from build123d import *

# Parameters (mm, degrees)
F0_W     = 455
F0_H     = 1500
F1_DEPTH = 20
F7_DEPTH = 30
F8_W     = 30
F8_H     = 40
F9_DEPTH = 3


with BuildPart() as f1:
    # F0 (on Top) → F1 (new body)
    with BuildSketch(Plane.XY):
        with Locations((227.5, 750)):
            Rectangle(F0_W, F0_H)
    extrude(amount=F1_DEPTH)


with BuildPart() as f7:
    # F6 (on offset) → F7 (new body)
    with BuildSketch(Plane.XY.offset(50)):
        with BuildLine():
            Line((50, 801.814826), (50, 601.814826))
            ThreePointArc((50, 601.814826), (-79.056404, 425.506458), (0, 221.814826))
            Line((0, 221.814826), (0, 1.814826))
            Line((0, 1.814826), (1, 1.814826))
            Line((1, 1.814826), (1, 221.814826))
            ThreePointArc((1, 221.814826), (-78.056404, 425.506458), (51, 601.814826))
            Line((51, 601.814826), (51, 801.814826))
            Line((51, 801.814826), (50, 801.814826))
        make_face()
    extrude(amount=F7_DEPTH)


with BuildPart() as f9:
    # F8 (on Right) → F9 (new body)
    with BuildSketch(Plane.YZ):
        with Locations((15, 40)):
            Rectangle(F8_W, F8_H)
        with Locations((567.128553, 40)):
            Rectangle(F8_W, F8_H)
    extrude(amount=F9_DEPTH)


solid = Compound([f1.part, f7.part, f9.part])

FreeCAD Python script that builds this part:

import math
import FreeCAD as App
import Part
import Sketcher
from FreeCAD import Vector

doc = App.newDocument("Part")
params = doc.addObject("Spreadsheet::Sheet", "Params")
for row, (alias, value) in enumerate([
    ("sketch1_width", "455 mm"),
    ("sketch1_height", "1500 mm"),
    ("pad1_length", "20 mm"),
    ("sketch2_width", "1 mm"),
    ("sketch2_height", "200 mm"),
    ("sketch2_height2", "220 mm"),
    ("pad2_length", "30 mm"),
    ("sketch3_width", "30 mm"),
    ("sketch3_height", "40 mm"),
    ("pad3_length", "3 mm"),
], start=1):
    params.set(f"A{row}", alias)
    params.set(f"B{row}", "=" + value)
    params.setAlias(f"B{row}", alias)

body = doc.addObject("PartDesign::Body", "Body")

# Sketch on XY plane
sketch1 = body.newObject("Sketcher::SketchObject", "Sketch")
sketch1.AttachmentSupport = (doc.getObject("XY_Plane"), [""])
sketch1.MapMode = "FlatFace"
sketch1.addGeometry([
    Part.LineSegment(Vector(0, 1500, 0), Vector(0, 0, 0)),
    Part.LineSegment(Vector(0, 0, 0), Vector(455, 0, 0)),
    Part.LineSegment(Vector(455, 0, 0), Vector(455, 1500, 0)),
    Part.LineSegment(Vector(455, 1500, 0), Vector(0, 1500, 0)),
], False)
sketch1.addConstraint([
    Sketcher.Constraint("Coincident", 0, 2, 1, 1),
    Sketcher.Constraint("Coincident", 1, 2, 2, 1),
    Sketcher.Constraint("Coincident", 2, 2, 3, 1),
    Sketcher.Constraint("Coincident", 3, 2, 0, 1),
    Sketcher.Constraint("Vertical", 0),
    Sketcher.Constraint("Horizontal", 1),
    Sketcher.Constraint("Vertical", 2),
    Sketcher.Constraint("Horizontal", 3),
    Sketcher.Constraint("Coincident", 0, 2, -1, 1),
    Sketcher.Constraint("DistanceX", 1, 1, 1, 2, 455.0),
    Sketcher.Constraint("DistanceY", 0, 2, 0, 1, 1500.0),
])
sketch1.setExpression("Constraints[9]", "Params.sketch1_width")
sketch1.setExpression("Constraints[10]", "Params.sketch1_height")
pad1 = body.newObject("PartDesign::Pad", "Pad")
pad1.Profile = sketch1
pad1.setExpression("Length", "Params.pad1_length")
body2 = doc.addObject("PartDesign::Body", "Body001")

# Sketch on XY plane
sketch2 = body2.newObject("Sketcher::SketchObject", "Sketch001")
sketch2.AttachmentSupport = (doc.getObject("XY_Plane001"), [""])
sketch2.MapMode = "FlatFace"
sketch2.AttachmentOffset = App.Placement(Vector(0, 0, 50), App.Rotation())
sketch2.addGeometry([
    Part.LineSegment(Vector(50, 801.8, 0), Vector(50, 601.8, 0)),  # 0
    Part.ArcOfCircle(Part.Circle(Vector(146.4, 395.8, 0), Vector(0, 0, 1), 227.4), math.radians(115), math.radians(230)),  # 1
    Part.LineSegment(Vector(0, 221.8, 0), Vector(0, 1.8, 0)),  # 2
    Part.LineSegment(Vector(0, 1.8, 0), Vector(1, 1.8, 0)),  # 3
    Part.LineSegment(Vector(1, 1.8, 0), Vector(1, 221.8, 0)),  # 4
    Part.ArcOfCircle(Part.Circle(Vector(147.4, 395.8, 0), Vector(0, 0, 1), 227.4), math.radians(115), math.radians(230)),  # 5
    Part.LineSegment(Vector(51, 601.8, 0), Vector(51, 801.8, 0)),  # 6
    Part.LineSegment(Vector(51, 801.8, 0), Vector(50, 801.8, 0)),  # 7
], False)
sketch2.addConstraint([
    Sketcher.Constraint("Coincident", 0, 2, 1, 1),
    Sketcher.Constraint("Coincident", 1, 2, 2, 1),
    Sketcher.Constraint("Coincident", 2, 2, 3, 1),
    Sketcher.Constraint("Coincident", 3, 2, 4, 1),
    Sketcher.Constraint("Coincident", 4, 2, 5, 2),
    Sketcher.Constraint("Coincident", 5, 1, 6, 1),
    Sketcher.Constraint("Coincident", 6, 2, 7, 1),
    Sketcher.Constraint("Coincident", 7, 2, 0, 1),
    Sketcher.Constraint("Vertical", 0),
    Sketcher.Constraint("Vertical", 2),
    Sketcher.Constraint("Horizontal", 3),
    Sketcher.Constraint("Vertical", 4),
    Sketcher.Constraint("Vertical", 6),
    Sketcher.Constraint("Horizontal", 7),
    Sketcher.Constraint("Equal", 1, 5),
    Sketcher.Constraint("PointOnObject", 1, 2, -2),
    Sketcher.Constraint("Horizontal", 1, 3, 5, 3),
    Sketcher.Constraint("Horizontal", 1, 2, 4, 2),
    Sketcher.Constraint("Horizontal", 0, 2, 5, 1),
    Sketcher.Constraint("DistanceX", 3, 1, 3, 2, 1.0),
    Sketcher.Constraint("DistanceY", 0, 2, 0, 1, 200.0),
    Sketcher.Constraint("DistanceY", 2, 2, 2, 1, 220.0),
    Sketcher.Constraint("DistanceX", -1, 1, 0, 2, 50.0),
    Sketcher.Constraint("DistanceY", 1, 2, 0, 2, 380.0),
    Sketcher.Constraint("Radius", 1, 227.435413),
    Sketcher.Constraint("DistanceY", -1, 1, 1, 3, 395.836482),
])
sketch2.setExpression("Constraints[19]", "Params.sketch2_width")
sketch2.setExpression("Constraints[20]", "Params.sketch2_height")
sketch2.setExpression("Constraints[21]", "Params.sketch2_height2")
pad2 = body2.newObject("PartDesign::Pad", "Pad001")
pad2.Profile = sketch2
pad2.setExpression("Length", "Params.pad2_length")
body3 = doc.addObject("PartDesign::Body", "Body002")
body3.AllowCompound = True

# Sketch on YZ plane
sketch3 = body3.newObject("Sketcher::SketchObject", "Sketch002")
sketch3.AttachmentSupport = (doc.getObject("YZ_Plane002"), [""])
sketch3.MapMode = "FlatFace"
sketch3.addGeometry([
    Part.LineSegment(Vector(0, 60, 0), Vector(0, 20, 0)),  # 0
    Part.LineSegment(Vector(0, 20, 0), Vector(30, 20, 0)),  # 1
    Part.LineSegment(Vector(30, 20, 0), Vector(30, 60, 0)),  # 2
    Part.LineSegment(Vector(30, 60, 0), Vector(0, 60, 0)),  # 3
    Part.LineSegment(Vector(552, 60, 0), Vector(552, 20, 0)),  # 4
    Part.LineSegment(Vector(552, 20, 0), Vector(582, 20, 0)),  # 5
    Part.LineSegment(Vector(582, 20, 0), Vector(582, 60, 0)),  # 6
    Part.LineSegment(Vector(582, 60, 0), Vector(552, 60, 0)),  # 7
], False)
sketch3.addConstraint([
    Sketcher.Constraint("Coincident", 0, 2, 1, 1),
    Sketcher.Constraint("Coincident", 1, 2, 2, 1),
    Sketcher.Constraint("Coincident", 2, 2, 3, 1),
    Sketcher.Constraint("Coincident", 3, 2, 0, 1),
    Sketcher.Constraint("Coincident", 4, 2, 5, 1),
    Sketcher.Constraint("Coincident", 5, 2, 6, 1),
    Sketcher.Constraint("Coincident", 6, 2, 7, 1),
    Sketcher.Constraint("Coincident", 7, 2, 4, 1),
    Sketcher.Constraint("Vertical", 0),
    Sketcher.Constraint("Horizontal", 1),
    Sketcher.Constraint("Vertical", 2),
    Sketcher.Constraint("Horizontal", 3),
    Sketcher.Constraint("Vertical", 4),
    Sketcher.Constraint("Horizontal", 5),
    Sketcher.Constraint("Vertical", 6),
    Sketcher.Constraint("Horizontal", 7),
    Sketcher.Constraint("PointOnObject", 0, 2, -2),
    Sketcher.Constraint("Horizontal", 1, 2, 4, 2),
    Sketcher.Constraint("Horizontal", 3, 2, 6, 2),
    Sketcher.Constraint("Equal", 3, 5),
    Sketcher.Constraint("DistanceX", 1, 1, 1, 2, 30.0),
    Sketcher.Constraint("DistanceY", 0, 2, 0, 1, 40.0),
    Sketcher.Constraint("DistanceY", -1, 1, 0, 2, 20.0),
    Sketcher.Constraint("DistanceX", -1, 1, 4, 2, 552.128553),
])
sketch3.setExpression("Constraints[20]", "Params.sketch3_width")
sketch3.setExpression("Constraints[21]", "Params.sketch3_height")
pad3 = body3.newObject("PartDesign::Pad", "Pad002")
pad3.Profile = sketch3
pad3.setExpression("Length", "Params.pad3_length")

doc.recompute()
